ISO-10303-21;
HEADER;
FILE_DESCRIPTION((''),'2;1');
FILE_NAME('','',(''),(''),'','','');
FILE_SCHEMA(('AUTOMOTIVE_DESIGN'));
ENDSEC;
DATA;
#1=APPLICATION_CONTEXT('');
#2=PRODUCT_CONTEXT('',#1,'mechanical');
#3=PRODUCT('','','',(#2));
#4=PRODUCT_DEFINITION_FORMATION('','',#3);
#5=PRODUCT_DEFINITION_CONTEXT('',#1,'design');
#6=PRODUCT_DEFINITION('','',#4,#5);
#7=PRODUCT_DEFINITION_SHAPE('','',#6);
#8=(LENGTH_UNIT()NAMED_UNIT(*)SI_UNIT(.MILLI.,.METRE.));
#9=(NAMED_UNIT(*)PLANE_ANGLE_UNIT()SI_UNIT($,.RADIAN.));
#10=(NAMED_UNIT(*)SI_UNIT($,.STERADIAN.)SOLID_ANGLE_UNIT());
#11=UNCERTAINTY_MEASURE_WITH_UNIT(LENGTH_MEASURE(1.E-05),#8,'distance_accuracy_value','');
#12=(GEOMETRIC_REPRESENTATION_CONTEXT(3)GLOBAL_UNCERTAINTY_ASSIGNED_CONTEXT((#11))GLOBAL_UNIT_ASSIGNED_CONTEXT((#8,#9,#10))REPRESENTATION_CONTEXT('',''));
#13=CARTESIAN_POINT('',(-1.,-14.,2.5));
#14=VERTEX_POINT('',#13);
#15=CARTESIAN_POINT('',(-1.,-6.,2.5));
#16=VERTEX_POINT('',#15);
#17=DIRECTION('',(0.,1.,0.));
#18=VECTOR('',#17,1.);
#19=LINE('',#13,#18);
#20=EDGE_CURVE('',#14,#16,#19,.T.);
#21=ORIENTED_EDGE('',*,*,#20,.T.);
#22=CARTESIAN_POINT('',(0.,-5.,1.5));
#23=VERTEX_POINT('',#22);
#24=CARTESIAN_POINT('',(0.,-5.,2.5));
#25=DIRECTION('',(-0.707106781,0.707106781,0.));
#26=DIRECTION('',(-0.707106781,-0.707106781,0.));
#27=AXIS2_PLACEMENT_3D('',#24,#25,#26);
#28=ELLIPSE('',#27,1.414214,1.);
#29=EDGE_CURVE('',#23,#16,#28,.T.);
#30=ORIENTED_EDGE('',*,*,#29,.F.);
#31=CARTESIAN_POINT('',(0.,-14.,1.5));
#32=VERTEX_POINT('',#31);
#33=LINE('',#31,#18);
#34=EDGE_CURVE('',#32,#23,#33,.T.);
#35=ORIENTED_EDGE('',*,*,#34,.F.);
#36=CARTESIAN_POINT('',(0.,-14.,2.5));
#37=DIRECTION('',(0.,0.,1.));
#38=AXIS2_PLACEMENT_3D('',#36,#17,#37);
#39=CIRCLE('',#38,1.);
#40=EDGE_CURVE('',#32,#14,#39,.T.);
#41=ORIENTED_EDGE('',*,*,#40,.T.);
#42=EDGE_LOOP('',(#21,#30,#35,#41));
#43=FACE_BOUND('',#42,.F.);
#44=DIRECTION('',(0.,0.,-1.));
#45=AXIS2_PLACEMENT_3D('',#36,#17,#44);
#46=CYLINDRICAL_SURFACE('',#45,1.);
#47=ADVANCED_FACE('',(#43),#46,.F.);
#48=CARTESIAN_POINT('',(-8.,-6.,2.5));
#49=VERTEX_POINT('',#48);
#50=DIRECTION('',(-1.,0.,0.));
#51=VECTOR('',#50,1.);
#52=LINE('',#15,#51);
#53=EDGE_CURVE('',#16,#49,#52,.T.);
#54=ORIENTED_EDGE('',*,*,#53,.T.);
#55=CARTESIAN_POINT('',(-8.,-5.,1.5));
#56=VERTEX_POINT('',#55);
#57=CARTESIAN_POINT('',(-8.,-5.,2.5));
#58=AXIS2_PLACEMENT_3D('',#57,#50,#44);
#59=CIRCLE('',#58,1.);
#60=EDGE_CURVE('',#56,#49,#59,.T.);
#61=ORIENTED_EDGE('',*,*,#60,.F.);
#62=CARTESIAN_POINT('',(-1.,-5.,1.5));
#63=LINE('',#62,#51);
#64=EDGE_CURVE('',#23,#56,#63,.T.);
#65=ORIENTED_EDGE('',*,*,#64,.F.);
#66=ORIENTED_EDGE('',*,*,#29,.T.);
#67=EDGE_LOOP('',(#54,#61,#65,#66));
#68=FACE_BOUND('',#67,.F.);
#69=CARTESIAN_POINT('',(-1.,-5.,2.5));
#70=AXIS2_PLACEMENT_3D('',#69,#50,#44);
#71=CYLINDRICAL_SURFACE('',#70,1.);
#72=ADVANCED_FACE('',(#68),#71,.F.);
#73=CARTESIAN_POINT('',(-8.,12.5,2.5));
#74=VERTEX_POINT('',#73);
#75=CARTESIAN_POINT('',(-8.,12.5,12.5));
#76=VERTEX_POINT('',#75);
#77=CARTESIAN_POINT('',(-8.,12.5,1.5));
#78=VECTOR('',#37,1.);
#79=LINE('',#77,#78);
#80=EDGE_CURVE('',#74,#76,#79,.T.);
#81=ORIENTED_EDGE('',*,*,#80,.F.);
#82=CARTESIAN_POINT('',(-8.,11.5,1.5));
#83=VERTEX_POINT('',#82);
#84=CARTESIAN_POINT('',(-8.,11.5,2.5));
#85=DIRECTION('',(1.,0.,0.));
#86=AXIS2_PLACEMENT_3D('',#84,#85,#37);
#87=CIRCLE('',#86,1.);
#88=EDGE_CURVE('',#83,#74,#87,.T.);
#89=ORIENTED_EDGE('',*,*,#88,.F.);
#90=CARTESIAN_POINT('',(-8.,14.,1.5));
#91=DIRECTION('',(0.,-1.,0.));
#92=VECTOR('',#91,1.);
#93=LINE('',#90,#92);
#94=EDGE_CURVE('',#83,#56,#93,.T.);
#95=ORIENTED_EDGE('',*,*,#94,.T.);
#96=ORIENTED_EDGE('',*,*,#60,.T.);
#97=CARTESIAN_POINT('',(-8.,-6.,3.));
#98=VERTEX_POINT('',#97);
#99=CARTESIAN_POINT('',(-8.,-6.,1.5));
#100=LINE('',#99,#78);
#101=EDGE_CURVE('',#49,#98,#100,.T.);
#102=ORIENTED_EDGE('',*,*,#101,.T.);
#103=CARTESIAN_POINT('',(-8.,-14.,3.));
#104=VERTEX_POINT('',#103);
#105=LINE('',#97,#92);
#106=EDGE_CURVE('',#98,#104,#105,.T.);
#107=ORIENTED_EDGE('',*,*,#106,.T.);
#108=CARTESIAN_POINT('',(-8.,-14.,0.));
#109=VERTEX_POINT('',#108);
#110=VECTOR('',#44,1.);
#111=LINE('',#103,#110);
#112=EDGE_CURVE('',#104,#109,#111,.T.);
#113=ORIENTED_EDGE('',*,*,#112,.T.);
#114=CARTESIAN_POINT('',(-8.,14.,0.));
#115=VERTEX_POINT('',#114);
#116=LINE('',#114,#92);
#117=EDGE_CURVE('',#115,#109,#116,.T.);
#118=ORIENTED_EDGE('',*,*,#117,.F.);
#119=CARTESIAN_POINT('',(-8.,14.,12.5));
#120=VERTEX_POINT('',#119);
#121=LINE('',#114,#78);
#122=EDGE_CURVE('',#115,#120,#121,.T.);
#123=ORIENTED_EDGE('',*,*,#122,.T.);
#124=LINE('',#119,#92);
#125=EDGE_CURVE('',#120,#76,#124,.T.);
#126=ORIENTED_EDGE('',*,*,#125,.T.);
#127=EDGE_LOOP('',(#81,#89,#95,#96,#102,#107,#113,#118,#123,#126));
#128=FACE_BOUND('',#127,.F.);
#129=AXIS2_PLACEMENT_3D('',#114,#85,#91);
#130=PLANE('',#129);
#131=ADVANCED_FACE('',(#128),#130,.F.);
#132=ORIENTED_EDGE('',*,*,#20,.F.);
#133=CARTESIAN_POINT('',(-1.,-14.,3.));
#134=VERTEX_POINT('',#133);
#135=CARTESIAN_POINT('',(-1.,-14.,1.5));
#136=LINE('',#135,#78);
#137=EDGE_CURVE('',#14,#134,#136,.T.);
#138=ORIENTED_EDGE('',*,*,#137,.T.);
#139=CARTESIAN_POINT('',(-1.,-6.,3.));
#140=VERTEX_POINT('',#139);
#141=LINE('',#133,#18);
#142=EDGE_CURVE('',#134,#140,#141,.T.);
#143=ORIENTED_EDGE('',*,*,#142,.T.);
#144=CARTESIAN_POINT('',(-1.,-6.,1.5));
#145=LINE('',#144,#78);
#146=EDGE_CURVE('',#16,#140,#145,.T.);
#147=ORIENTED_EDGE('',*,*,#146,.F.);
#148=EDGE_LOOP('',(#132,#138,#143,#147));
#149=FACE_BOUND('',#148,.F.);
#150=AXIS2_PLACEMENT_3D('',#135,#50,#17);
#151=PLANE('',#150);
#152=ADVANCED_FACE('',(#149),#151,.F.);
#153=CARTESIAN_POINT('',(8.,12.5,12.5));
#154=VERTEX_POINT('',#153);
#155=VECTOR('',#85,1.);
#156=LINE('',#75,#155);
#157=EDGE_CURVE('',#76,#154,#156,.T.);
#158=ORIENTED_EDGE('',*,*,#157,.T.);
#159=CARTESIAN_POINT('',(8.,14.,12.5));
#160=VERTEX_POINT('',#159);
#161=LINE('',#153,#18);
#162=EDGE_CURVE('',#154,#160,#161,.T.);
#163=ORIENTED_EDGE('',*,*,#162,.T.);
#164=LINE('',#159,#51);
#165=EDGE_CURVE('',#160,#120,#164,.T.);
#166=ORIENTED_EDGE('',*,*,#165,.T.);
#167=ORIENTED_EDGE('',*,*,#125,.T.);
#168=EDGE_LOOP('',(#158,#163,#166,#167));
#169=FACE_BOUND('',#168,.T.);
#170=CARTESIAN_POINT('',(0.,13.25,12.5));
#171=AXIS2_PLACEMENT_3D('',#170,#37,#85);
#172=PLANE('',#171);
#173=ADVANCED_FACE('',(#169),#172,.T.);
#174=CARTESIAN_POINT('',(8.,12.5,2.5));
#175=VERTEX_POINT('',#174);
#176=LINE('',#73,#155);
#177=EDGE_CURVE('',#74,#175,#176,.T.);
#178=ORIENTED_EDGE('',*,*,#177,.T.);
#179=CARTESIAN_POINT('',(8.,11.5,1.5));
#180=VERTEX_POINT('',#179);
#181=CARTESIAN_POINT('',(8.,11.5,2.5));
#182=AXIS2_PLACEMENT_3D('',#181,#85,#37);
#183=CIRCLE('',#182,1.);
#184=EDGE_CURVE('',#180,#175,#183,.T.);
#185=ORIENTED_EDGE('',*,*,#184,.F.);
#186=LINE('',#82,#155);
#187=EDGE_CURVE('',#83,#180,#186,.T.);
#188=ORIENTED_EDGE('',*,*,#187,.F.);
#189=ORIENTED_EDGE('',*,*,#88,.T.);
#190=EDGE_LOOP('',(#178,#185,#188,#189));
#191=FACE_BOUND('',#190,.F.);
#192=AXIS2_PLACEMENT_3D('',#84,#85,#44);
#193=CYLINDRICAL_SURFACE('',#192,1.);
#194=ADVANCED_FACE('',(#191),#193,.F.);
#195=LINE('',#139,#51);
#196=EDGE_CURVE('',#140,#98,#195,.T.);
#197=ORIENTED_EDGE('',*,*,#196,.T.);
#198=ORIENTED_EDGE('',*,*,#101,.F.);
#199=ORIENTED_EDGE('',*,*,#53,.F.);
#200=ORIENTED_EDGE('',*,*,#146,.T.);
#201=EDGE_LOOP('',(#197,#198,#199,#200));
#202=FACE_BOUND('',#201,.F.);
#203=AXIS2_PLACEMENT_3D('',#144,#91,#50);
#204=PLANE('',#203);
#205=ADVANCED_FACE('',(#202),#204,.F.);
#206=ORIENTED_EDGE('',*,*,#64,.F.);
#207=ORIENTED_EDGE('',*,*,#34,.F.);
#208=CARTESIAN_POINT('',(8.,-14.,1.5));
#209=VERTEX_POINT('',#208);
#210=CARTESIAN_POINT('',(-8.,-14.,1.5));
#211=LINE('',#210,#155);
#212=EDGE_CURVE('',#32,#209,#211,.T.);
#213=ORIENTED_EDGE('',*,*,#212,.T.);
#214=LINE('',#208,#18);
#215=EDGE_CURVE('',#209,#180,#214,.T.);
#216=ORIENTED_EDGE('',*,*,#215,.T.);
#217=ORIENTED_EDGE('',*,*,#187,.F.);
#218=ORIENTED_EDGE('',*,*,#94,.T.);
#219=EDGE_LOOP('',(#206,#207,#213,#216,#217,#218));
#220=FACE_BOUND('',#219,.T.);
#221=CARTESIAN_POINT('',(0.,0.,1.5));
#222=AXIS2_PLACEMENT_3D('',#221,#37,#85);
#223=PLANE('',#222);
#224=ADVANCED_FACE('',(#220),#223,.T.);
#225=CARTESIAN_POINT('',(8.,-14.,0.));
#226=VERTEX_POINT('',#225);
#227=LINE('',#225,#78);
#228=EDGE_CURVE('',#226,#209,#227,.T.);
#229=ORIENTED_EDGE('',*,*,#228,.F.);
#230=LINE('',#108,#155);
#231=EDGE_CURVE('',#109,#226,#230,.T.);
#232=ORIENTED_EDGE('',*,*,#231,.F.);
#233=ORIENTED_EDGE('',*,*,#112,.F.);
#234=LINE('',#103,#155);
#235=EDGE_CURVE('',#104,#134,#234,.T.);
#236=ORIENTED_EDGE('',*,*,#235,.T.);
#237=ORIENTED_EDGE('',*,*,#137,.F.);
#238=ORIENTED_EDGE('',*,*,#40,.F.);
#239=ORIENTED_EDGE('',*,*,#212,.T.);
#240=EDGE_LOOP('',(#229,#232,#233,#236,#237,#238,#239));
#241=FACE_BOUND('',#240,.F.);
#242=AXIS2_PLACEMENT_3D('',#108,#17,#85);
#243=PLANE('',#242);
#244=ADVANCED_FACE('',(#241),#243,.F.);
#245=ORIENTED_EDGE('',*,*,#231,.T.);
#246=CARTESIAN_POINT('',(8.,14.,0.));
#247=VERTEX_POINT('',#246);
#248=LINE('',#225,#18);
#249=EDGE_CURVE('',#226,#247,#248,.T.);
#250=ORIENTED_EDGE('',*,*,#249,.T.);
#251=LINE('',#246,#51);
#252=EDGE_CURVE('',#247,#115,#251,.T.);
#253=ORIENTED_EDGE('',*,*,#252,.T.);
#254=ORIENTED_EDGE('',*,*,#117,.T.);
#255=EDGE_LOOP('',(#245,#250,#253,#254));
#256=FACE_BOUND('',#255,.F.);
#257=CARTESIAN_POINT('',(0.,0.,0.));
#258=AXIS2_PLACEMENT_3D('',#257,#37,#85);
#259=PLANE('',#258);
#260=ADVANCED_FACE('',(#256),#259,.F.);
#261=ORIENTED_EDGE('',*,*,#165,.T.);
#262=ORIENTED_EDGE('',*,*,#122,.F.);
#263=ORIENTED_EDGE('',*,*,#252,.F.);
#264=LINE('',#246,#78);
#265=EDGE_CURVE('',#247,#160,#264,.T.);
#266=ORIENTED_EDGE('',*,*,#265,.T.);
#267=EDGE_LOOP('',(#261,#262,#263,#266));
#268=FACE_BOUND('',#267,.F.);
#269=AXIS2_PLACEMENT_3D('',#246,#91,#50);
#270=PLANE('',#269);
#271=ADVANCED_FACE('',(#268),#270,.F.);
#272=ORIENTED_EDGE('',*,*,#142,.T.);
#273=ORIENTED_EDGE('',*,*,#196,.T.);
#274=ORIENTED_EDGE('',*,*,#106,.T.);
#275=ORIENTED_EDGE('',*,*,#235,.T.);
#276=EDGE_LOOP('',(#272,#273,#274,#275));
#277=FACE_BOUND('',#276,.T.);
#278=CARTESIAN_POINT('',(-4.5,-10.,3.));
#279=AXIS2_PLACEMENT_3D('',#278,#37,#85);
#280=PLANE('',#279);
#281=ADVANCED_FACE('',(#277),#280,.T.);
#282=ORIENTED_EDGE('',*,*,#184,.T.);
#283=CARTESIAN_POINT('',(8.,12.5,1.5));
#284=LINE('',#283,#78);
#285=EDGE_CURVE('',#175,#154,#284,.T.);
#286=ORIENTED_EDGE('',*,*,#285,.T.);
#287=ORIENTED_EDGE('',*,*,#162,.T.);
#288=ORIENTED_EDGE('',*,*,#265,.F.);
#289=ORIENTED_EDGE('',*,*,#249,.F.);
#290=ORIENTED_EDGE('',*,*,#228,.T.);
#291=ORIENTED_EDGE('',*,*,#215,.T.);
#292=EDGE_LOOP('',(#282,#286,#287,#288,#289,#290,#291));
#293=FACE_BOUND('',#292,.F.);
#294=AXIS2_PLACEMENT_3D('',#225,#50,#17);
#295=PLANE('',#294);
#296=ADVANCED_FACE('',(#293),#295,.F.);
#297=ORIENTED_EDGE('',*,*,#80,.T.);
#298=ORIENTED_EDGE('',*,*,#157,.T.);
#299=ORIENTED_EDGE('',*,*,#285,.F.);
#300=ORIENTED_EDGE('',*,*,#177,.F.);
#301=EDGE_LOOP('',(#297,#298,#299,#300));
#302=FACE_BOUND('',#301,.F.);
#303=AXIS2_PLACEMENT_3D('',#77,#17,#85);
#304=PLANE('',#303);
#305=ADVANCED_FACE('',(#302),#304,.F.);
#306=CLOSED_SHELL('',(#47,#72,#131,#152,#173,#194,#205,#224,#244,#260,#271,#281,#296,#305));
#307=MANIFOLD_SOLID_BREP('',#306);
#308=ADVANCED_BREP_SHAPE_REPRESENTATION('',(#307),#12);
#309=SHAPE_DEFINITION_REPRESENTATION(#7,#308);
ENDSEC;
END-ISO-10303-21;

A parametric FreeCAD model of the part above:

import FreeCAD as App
import Part
import Sketcher

V = App.Vector
Q = App.Units.Quantity


def edges_at(feature, points):
    """Names of the edges that pass closest to the given points."""
    edges = feature.Shape.Edges
    near = lambda p: min(range(len(edges)), key=lambda i: edges[i].distToShape(Part.Vertex(*p))[0])
    return sorted({f"Edge{near(p) + 1}" for p in points})


def add_polygon(sketch, points):
    """Adds a closed chain of lines whose ends are joined by coincident constraints."""
    first, n = sketch.GeometryCount, len(points)
    for a, b in zip(points, points[1:] + points[:1]):
        sketch.addGeometry(Part.LineSegment(App.Vector(*a, 0), App.Vector(*b, 0)), False)
    for i in range(n):
        sketch.addConstraint(Sketcher.Constraint("Coincident", first + i, 2, first + (i + 1) % n, 1))

doc = App.newDocument("Part")
body = doc.addObject("PartDesign::Body", "Body")

sketch1 = body.newObject("Sketcher::SketchObject", "Sketch")
sketch1.AttachmentSupport = (doc.getObject("XY_Plane"), [""])
sketch1.MapMode = "FlatFace"
add_polygon(sketch1, [(-8, -14), (8, -14), (8, 14), (-8, 14)])
sketch1.addConstraint([
    Sketcher.Constraint("Horizontal", 0),
    Sketcher.Constraint("Vertical", 1),
    Sketcher.Constraint("Horizontal", 2),
    Sketcher.Constraint("Vertical", 3),
    Sketcher.Constraint("Symmetric", 0, 2, 2, 2, -1, 1),
    Sketcher.Constraint("DistanceX", 0, 1, 0, 2, Q("16 mm")),
    Sketcher.Constraint("DistanceY", 1, 1, 1, 2, Q("28 mm")),
])
pad1 = body.newObject("PartDesign::Pad", "Pad")
pad1.Profile = sketch1
pad1.Length = 1.5

sketch2 = body.newObject("Sketcher::SketchObject", "Sketch001")
sketch2.AttachmentSupport = (doc.getObject("XY_Plane"), [""])
sketch2.MapMode = "FlatFace"
sketch2.AttachmentOffset = App.Placement(V(0, 0, 1.5), App.Rotation())
add_polygon(sketch2, [(-8, 14), (-8, 12.5), (8, 12.5), (8, 14)])
sketch2.addConstraint([
    Sketcher.Constraint("Vertical", 0),
    Sketcher.Constraint("Horizontal", 1),
    Sketcher.Constraint("Vertical", 2),
    Sketcher.Constraint("Horizontal", 3),
    Sketcher.Constraint("DistanceX", 1, 1, 1, 2, Q("16 mm")),
    Sketcher.Constraint("DistanceY", 0, 2, 0, 1, Q("1.5 mm")),
    Sketcher.Constraint("DistanceX", 0, 2, -1, 1, Q("8 mm")),
    Sketcher.Constraint("DistanceY", -1, 1, 2, 2, Q("14 mm")),
])
pad2 = body.newObject("PartDesign::Pad", "Pad001")
pad2.Profile = sketch2
pad2.Length = 11

sketch3 = body.newObject("Sketcher::SketchObject", "Sketch002")
sketch3.AttachmentSupport = (doc.getObject("XY_Plane"), [""])
sketch3.MapMode = "FlatFace"
sketch3.AttachmentOffset = App.Placement(V(0, 0, 1.5), App.Rotation())
add_polygon(sketch3, [(-1, -14), (-1, -6), (-8, -6), (-8, -14)])
sketch3.addConstraint([
    Sketcher.Constraint("Vertical", 0),
    Sketcher.Constraint("Horizontal", 1),
    Sketcher.Constraint("Vertical", 2),
    Sketcher.Constraint("Horizontal", 3),
    Sketcher.Constraint("DistanceX", 1, 2, 1, 1, Q("7 mm")),
    Sketcher.Constraint("DistanceY", 0, 1, 0, 2, Q("8 mm")),
    Sketcher.Constraint("DistanceX", 0, 2, -1, 1, Q("1 mm")),
    Sketcher.Constraint("DistanceY", 0, 2, -1, 1, Q("6 mm")),
])
pad3 = body.newObject("PartDesign::Pad", "Pad002")
pad3.Profile = sketch3
pad3.Length = 1.5
doc.recompute()

fillet = body.newObject("PartDesign::Fillet", "Fillet")
fillet.Base = (pad3, edges_at(pad3, [(0, 12.5, 1.5)]))
fillet.Radius = 1
doc.recompute()

fillet2 = body.newObject("PartDesign::Fillet", "Fillet001")
fillet2.Base = (fillet, edges_at(fillet, [(-4.5, -6, 1.5), (-1, -10, 1.5)]))
fillet2.Radius = 1

doc.recompute()
